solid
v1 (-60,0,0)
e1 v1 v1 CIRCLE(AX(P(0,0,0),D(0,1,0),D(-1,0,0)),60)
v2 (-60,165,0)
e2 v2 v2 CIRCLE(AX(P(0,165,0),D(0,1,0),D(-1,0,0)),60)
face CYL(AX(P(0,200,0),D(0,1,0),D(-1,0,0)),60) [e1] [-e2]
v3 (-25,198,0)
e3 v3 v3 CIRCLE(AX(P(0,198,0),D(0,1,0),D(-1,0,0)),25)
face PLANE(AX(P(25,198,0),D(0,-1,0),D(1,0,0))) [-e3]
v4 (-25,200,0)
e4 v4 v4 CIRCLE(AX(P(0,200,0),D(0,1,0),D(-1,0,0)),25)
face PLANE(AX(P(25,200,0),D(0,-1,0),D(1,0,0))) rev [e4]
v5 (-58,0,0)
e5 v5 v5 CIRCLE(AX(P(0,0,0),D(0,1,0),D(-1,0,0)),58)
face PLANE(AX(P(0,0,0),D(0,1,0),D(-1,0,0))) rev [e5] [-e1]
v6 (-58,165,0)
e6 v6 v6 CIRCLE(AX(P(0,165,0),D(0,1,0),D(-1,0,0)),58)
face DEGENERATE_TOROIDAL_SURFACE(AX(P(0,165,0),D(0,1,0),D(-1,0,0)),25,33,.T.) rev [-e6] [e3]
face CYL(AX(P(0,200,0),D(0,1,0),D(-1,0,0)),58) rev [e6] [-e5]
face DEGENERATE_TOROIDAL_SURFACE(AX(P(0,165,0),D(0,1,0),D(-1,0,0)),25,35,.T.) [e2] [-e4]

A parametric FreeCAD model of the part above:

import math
import FreeCAD as App
import Part
import Sketcher
from FreeCAD import Vector
Q = App.Units.Quantity


def faces_at(feature, points):
    """Names of the faces that lie closest to the given points."""
    faces = feature.Shape.Faces
    near = lambda p: min(range(len(faces)), key=lambda i: faces[i].distToShape(Part.Vertex(*p))[0])
    return sorted({f"Face{near(p) + 1}" for p in points})

doc = App.newDocument("Part")
body = doc.addObject("PartDesign::Body", "Body")

# Sketch on XY plane
sketch1 = body.newObject("Sketcher::SketchObject", "Sketch")
sketch1.AttachmentSupport = (doc.getObject("XY_Plane"), [""])
sketch1.MapMode = "FlatFace"
sketch1.addGeometry([
    Part.LineSegment(Vector(0, 0, 0), Vector(60, 0, 0)),  # 0
    Part.LineSegment(Vector(60, 0, 0), Vector(60, 165, 0)),  # 1
    Part.ArcOfCircle(Part.Circle(Vector(25, 165, 0), Vector(0, 0, 1), 35), math.radians(0), math.radians(90)),  # 2
    Part.LineSegment(Vector(25, 200, 0), Vector(0, 200, 0)),  # 3
    Part.LineSegment(Vector(0, 200, 0), Vector(0, 0, 0)),  # 4
], False)
sketch1.addConstraint([
    Sketcher.Constraint("Coincident", 0, 2, 1, 1),
    Sketcher.Constraint("Tangent", 1, 2, 2, 1),
    Sketcher.Constraint("Tangent", 2, 2, 3, 1),
    Sketcher.Constraint("Coincident", 3, 2, 4, 1),
    Sketcher.Constraint("Coincident", 4, 2, 0, 1),
    Sketcher.Constraint("Horizontal", 0),
    Sketcher.Constraint("Vertical", 1),
    Sketcher.Constraint("Horizontal", 3),
    Sketcher.Constraint("Vertical", 4),
    Sketcher.Constraint("Coincident", 4, 2, -1, 1),
    Sketcher.Constraint("Radius", 2, Q("35 mm")),
    Sketcher.Constraint("DistanceX", 0, 1, 0, 2, Q("60 mm")),
    Sketcher.Constraint("DistanceY", 1, 1, 1, 2, Q("165 mm")),
])
revolution = body.newObject("PartDesign::Revolution", "Revolution")
revolution.Profile = sketch1
revolution.ReferenceAxis = (sketch1, ["V_Axis"])
revolution.Angle = 360
doc.recompute()

thickness = body.newObject("PartDesign::Thickness", "Thickness")
thickness.Base = (revolution, faces_at(revolution, [(0, 0, 0)]))
thickness.Value = 2
thickness.Reversed = True
thickness.Join = "Intersection"

doc.recompute()
